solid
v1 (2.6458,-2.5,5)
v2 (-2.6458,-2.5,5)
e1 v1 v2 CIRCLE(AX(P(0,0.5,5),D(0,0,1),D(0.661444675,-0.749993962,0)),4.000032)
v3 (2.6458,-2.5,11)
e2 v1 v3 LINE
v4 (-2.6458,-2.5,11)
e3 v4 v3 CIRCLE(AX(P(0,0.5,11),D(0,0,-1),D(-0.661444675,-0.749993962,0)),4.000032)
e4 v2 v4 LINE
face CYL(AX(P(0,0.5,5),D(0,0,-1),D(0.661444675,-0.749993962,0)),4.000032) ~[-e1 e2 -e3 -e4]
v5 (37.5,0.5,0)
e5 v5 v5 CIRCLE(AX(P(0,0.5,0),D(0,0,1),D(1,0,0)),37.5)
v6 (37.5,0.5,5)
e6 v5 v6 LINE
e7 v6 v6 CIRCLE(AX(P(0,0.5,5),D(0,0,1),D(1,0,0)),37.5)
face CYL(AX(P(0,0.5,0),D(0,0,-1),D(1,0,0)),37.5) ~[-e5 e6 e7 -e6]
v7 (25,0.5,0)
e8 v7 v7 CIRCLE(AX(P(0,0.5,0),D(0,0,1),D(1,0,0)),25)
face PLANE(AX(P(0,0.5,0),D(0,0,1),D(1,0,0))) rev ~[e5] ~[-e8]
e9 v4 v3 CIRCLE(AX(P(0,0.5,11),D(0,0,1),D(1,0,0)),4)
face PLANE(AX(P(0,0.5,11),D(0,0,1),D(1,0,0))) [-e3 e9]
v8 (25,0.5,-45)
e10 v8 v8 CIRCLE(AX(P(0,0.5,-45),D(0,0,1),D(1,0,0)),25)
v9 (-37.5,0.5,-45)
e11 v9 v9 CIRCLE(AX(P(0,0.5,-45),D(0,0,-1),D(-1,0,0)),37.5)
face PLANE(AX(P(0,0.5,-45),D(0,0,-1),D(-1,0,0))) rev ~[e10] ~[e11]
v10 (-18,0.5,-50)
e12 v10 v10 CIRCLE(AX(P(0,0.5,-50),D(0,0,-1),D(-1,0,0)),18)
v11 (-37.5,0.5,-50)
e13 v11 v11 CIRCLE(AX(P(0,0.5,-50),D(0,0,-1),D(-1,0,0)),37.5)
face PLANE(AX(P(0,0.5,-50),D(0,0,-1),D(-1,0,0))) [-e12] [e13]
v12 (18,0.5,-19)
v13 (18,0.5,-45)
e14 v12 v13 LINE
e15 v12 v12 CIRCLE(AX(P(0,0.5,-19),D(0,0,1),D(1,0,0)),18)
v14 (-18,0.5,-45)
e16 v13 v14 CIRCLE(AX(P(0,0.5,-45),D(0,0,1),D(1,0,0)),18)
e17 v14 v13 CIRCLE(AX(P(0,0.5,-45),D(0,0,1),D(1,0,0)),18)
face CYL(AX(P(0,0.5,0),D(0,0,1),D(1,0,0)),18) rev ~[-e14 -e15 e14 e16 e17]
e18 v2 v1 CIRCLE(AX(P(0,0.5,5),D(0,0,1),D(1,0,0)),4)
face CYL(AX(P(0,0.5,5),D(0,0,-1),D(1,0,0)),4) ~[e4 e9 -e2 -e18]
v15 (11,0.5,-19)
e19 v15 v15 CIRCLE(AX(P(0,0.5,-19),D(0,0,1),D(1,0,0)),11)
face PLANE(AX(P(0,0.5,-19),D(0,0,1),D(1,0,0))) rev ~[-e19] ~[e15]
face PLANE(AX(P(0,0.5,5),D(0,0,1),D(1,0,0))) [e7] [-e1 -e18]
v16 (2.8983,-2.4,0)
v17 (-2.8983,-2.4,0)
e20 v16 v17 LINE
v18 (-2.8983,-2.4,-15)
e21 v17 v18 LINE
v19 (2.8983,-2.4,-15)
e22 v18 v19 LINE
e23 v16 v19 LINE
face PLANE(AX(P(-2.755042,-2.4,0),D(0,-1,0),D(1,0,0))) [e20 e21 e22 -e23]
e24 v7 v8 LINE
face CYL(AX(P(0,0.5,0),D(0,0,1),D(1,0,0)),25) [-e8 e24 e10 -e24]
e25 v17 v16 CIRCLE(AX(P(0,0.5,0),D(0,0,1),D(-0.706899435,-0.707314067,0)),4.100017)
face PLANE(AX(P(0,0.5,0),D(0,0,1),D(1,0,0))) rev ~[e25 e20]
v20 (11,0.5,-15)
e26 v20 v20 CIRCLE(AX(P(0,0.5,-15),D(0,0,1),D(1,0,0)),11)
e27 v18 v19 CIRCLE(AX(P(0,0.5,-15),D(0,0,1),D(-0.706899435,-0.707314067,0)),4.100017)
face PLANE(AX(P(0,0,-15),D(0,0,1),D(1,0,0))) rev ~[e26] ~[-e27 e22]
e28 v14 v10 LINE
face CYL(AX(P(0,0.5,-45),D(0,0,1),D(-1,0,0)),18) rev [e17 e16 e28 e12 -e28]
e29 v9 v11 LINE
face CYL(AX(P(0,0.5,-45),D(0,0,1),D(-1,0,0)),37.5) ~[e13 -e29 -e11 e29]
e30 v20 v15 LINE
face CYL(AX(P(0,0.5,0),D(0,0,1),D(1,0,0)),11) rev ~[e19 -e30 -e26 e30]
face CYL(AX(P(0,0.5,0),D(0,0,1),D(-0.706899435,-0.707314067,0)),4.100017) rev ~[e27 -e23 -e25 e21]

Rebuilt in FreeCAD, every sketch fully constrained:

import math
import FreeCAD as App
import Part
import Sketcher
Q = App.Units.Quantity

doc = App.newDocument("Part")
params = doc.addObject("Spreadsheet::Sheet", "Params")
for row, (alias, value) in enumerate([
    ("sketch1_diameter", "22 mm"),
    ("sketch1_radius", "4.1 mm"),
    ("pad1_length", "15 mm"),
    ("sketch2_diameter", "36 mm"),
    ("sketch2_diameter2", "22 mm"),
    ("pad2_length", "19 mm"),
    ("sketch3_diameter", "50 mm"),
    ("sketch3_diameter2", "36 mm"),
    ("pad3_length", "45 mm"),
    ("sketch4_diameter", "75 mm"),
    ("pad4_length", "5 mm"),
    ("sketch5_diameter", "75 mm"),
    ("sketch5_diameter2", "36 mm"),
    ("pad5_length", "5 mm"),
    ("sketch6_diameter", "8 mm"),
    ("pad6_length", "6 mm"),
], start=1):
    params.set(f"A{row}", alias)
    params.set(f"B{row}", "=" + value)
    params.setAlias(f"B{row}", alias)

body = doc.addObject("PartDesign::Body", "Body")

# Sketch on XY plane
sketch1 = body.newObject("Sketcher::SketchObject", "Sketch")
sketch1.AttachmentSupport = (doc.getObject("XY_Plane"), [""])
sketch1.MapMode = "FlatFace"
sketch1.addGeometry([
    Part.Circle(App.Vector(0, 0.5, 0), App.Vector(0, 0, 1), 11),
    Part.ArcOfCircle(Part.Circle(App.Vector(0, 0.5, 0), App.Vector(0, 0, 1), 4.1), math.radians(-135), math.radians(-45)),
    Part.LineSegment(App.Vector(-2.9, -2.4, 0), App.Vector(2.9, -2.4, 0)),
], False)
sketch1.addConstraint([
    Sketcher.Constraint("Coincident", 1, 1, 2, 1),
    Sketcher.Constraint("Coincident", 2, 2, 1, 2),
    Sketcher.Constraint("Horizontal", 2),
    Sketcher.Constraint("Coincident", 1, 3, 0, 3),
    Sketcher.Constraint("PointOnObject", 0, 3, -2),
    Sketcher.Constraint("Diameter", 0, Q("22 mm")),
    Sketcher.Constraint("Radius", 1, Q("4.1 mm")),
    Sketcher.Constraint("DistanceY", -1, 1, 0, 3, Q("0.5 mm")),
    Sketcher.Constraint("DistanceY", 1, 1, -1, 1, Q("2.4 mm")),
])
sketch1.setExpression("Constraints[5]", "Params.sketch1_diameter")
sketch1.setExpression("Constraints[6]", "Params.sketch1_radius")
pad1 = body.newObject("PartDesign::Pad", "Pad")
pad1.Profile = sketch1
pad1.setExpression("Length", "Params.pad1_length")
pad1.Reversed = True

# Sketch on XY plane
sketch2 = body.newObject("Sketcher::SketchObject", "Sketch001")
sketch2.AttachmentSupport = (doc.getObject("XY_Plane"), [""])
sketch2.MapMode = "FlatFace"
sketch2.addGeometry([
    Part.Circle(App.Vector(0, 0, 0), App.Vector(0, 0, 1), 18),
    Part.Circle(App.Vector(0, 0, 0), App.Vector(0, 0, 1), 11),
], False)
sketch2.addConstraint([
    Sketcher.Constraint("Coincident", 1, 3, 0, 3),
    Sketcher.Constraint("PointOnObject", 0, 3, -2),
    Sketcher.Constraint("Diameter", 0, Q("36 mm")),
    Sketcher.Constraint("Diameter", 1, Q("22 mm")),
    Sketcher.Constraint("DistanceY", -1, 1, 0, 3, Q("0.5 mm")),
])
sketch2.setExpression("Constraints[2]", "Params.sketch2_diameter")
sketch2.setExpression("Constraints[3]", "Params.sketch2_diameter2")
pad2 = body.newObject("PartDesign::Pad", "Pad001")
pad2.Profile = sketch2
pad2.setExpression("Length", "Params.pad2_length")
pad2.Reversed = True

# Sketch on XY plane
sketch3 = body.newObject("Sketcher::SketchObject", "Sketch002")
sketch3.AttachmentSupport = (doc.getObject("XY_Plane"), [""])
sketch3.MapMode = "FlatFace"
sketch3.addGeometry([
    Part.Circle(App.Vector(0, 0, 0), App.Vector(0, 0, 1), 25),
    Part.Circle(App.Vector(0, 0, 0), App.Vector(0, 0, 1), 18),
], False)
sketch3.addConstraint([
    Sketcher.Constraint("Coincident", 1, 3, 0, 3),
    Sketcher.Constraint("PointOnObject", 0, 3, -2),
    Sketcher.Constraint("Diameter", 0, Q("50 mm")),
    Sketcher.Constraint("Diameter", 1, Q("36 mm")),
    Sketcher.Constraint("DistanceY", -1, 1, 0, 3, Q("0.5 mm")),
])
sketch3.setExpression("Constraints[2]", "Params.sketch3_diameter")
sketch3.setExpression("Constraints[3]", "Params.sketch3_diameter2")
pad3 = body.newObject("PartDesign::Pad", "Pad002")
pad3.Profile = sketch3
pad3.setExpression("Length", "Params.pad3_length")
pad3.Reversed = True

# Sketch on XY plane
sketch4 = body.newObject("Sketcher::SketchObject", "Sketch003")
sketch4.AttachmentSupport = (doc.getObject("XY_Plane"), [""])
sketch4.MapMode = "FlatFace"
sketch4.addGeometry(Part.Circle(App.Vector(0, 0, 0), App.Vector(0, 0, 1), 38), False)
sketch4.addConstraint([
    Sketcher.Constraint("PointOnObject", 0, 3, -2),
    Sketcher.Constraint("Diameter", 0, Q("75 mm")),
    Sketcher.Constraint("DistanceY", -1, 1, 0, 3, Q("0.5 mm")),
])
sketch4.setExpression("Constraints[1]", "Params.sketch4_diameter")
pad4 = body.newObject("PartDesign::Pad", "Pad003")
pad4.Profile = sketch4
pad4.setExpression("Length", "Params.pad4_length")

# Sketch on XY plane
sketch5 = body.newObject("Sketcher::SketchObject", "Sketch004")
sketch5.AttachmentSupport = (doc.getObject("XY_Plane"), [""])
sketch5.MapMode = "FlatFace"
sketch5.AttachmentOffset = App.Placement(App.Vector(0, 0, -45), App.Rotation())
sketch5.addGeometry([
    Part.Circle(App.Vector(0, 0, 0), App.Vector(0, 0, 1), 38),
    Part.Circle(App.Vector(0, 0, 0), App.Vector(0, 0, 1), 18),
], False)
sketch5.addConstraint([
    Sketcher.Constraint("Coincident", 1, 3, 0, 3),
    Sketcher.Constraint("PointOnObject", 0, 3, -2),
    Sketcher.Constraint("Diameter", 0, Q("75 mm")),
    Sketcher.Constraint("Diameter", 1, Q("36 mm")),
    Sketcher.Constraint("DistanceY", -1, 1, 0, 3, Q("0.5 mm")),
])
sketch5.setExpression("Constraints[2]", "Params.sketch5_diameter")
sketch5.setExpression("Constraints[3]", "Params.sketch5_diameter2")
pad5 = body.newObject("PartDesign::Pad", "Pad004")
pad5.Profile = sketch5
pad5.setExpression("Length", "Params.pad5_length")
pad5.Reversed = True

# Sketch on XY plane
sketch6 = body.newObject("Sketcher::SketchObject", "Sketch005")
sketch6.AttachmentSupport = (doc.getObject("XY_Plane"), [""])
sketch6.MapMode = "FlatFace"
sketch6.AttachmentOffset = App.Placement(App.Vector(0, 0, 5), App.Rotation())
sketch6.addGeometry(Part.Circle(App.Vector(0, 0.5, 0), App.Vector(0, 0, 1), 4), False)
sketch6.addConstraint([
    Sketcher.Constraint("PointOnObject", 0, 3, -2),
    Sketcher.Constraint("Diameter", 0, Q("8 mm")),
    Sketcher.Constraint("DistanceY", -1, 1, 0, 3, Q("0.5 mm")),
])
sketch6.setExpression("Constraints[1]", "Params.sketch6_diameter")
pad6 = body.newObject("PartDesign::Pad", "Pad005")
pad6.Profile = sketch6
pad6.setExpression("Length", "Params.pad6_length")

doc.recompute()
